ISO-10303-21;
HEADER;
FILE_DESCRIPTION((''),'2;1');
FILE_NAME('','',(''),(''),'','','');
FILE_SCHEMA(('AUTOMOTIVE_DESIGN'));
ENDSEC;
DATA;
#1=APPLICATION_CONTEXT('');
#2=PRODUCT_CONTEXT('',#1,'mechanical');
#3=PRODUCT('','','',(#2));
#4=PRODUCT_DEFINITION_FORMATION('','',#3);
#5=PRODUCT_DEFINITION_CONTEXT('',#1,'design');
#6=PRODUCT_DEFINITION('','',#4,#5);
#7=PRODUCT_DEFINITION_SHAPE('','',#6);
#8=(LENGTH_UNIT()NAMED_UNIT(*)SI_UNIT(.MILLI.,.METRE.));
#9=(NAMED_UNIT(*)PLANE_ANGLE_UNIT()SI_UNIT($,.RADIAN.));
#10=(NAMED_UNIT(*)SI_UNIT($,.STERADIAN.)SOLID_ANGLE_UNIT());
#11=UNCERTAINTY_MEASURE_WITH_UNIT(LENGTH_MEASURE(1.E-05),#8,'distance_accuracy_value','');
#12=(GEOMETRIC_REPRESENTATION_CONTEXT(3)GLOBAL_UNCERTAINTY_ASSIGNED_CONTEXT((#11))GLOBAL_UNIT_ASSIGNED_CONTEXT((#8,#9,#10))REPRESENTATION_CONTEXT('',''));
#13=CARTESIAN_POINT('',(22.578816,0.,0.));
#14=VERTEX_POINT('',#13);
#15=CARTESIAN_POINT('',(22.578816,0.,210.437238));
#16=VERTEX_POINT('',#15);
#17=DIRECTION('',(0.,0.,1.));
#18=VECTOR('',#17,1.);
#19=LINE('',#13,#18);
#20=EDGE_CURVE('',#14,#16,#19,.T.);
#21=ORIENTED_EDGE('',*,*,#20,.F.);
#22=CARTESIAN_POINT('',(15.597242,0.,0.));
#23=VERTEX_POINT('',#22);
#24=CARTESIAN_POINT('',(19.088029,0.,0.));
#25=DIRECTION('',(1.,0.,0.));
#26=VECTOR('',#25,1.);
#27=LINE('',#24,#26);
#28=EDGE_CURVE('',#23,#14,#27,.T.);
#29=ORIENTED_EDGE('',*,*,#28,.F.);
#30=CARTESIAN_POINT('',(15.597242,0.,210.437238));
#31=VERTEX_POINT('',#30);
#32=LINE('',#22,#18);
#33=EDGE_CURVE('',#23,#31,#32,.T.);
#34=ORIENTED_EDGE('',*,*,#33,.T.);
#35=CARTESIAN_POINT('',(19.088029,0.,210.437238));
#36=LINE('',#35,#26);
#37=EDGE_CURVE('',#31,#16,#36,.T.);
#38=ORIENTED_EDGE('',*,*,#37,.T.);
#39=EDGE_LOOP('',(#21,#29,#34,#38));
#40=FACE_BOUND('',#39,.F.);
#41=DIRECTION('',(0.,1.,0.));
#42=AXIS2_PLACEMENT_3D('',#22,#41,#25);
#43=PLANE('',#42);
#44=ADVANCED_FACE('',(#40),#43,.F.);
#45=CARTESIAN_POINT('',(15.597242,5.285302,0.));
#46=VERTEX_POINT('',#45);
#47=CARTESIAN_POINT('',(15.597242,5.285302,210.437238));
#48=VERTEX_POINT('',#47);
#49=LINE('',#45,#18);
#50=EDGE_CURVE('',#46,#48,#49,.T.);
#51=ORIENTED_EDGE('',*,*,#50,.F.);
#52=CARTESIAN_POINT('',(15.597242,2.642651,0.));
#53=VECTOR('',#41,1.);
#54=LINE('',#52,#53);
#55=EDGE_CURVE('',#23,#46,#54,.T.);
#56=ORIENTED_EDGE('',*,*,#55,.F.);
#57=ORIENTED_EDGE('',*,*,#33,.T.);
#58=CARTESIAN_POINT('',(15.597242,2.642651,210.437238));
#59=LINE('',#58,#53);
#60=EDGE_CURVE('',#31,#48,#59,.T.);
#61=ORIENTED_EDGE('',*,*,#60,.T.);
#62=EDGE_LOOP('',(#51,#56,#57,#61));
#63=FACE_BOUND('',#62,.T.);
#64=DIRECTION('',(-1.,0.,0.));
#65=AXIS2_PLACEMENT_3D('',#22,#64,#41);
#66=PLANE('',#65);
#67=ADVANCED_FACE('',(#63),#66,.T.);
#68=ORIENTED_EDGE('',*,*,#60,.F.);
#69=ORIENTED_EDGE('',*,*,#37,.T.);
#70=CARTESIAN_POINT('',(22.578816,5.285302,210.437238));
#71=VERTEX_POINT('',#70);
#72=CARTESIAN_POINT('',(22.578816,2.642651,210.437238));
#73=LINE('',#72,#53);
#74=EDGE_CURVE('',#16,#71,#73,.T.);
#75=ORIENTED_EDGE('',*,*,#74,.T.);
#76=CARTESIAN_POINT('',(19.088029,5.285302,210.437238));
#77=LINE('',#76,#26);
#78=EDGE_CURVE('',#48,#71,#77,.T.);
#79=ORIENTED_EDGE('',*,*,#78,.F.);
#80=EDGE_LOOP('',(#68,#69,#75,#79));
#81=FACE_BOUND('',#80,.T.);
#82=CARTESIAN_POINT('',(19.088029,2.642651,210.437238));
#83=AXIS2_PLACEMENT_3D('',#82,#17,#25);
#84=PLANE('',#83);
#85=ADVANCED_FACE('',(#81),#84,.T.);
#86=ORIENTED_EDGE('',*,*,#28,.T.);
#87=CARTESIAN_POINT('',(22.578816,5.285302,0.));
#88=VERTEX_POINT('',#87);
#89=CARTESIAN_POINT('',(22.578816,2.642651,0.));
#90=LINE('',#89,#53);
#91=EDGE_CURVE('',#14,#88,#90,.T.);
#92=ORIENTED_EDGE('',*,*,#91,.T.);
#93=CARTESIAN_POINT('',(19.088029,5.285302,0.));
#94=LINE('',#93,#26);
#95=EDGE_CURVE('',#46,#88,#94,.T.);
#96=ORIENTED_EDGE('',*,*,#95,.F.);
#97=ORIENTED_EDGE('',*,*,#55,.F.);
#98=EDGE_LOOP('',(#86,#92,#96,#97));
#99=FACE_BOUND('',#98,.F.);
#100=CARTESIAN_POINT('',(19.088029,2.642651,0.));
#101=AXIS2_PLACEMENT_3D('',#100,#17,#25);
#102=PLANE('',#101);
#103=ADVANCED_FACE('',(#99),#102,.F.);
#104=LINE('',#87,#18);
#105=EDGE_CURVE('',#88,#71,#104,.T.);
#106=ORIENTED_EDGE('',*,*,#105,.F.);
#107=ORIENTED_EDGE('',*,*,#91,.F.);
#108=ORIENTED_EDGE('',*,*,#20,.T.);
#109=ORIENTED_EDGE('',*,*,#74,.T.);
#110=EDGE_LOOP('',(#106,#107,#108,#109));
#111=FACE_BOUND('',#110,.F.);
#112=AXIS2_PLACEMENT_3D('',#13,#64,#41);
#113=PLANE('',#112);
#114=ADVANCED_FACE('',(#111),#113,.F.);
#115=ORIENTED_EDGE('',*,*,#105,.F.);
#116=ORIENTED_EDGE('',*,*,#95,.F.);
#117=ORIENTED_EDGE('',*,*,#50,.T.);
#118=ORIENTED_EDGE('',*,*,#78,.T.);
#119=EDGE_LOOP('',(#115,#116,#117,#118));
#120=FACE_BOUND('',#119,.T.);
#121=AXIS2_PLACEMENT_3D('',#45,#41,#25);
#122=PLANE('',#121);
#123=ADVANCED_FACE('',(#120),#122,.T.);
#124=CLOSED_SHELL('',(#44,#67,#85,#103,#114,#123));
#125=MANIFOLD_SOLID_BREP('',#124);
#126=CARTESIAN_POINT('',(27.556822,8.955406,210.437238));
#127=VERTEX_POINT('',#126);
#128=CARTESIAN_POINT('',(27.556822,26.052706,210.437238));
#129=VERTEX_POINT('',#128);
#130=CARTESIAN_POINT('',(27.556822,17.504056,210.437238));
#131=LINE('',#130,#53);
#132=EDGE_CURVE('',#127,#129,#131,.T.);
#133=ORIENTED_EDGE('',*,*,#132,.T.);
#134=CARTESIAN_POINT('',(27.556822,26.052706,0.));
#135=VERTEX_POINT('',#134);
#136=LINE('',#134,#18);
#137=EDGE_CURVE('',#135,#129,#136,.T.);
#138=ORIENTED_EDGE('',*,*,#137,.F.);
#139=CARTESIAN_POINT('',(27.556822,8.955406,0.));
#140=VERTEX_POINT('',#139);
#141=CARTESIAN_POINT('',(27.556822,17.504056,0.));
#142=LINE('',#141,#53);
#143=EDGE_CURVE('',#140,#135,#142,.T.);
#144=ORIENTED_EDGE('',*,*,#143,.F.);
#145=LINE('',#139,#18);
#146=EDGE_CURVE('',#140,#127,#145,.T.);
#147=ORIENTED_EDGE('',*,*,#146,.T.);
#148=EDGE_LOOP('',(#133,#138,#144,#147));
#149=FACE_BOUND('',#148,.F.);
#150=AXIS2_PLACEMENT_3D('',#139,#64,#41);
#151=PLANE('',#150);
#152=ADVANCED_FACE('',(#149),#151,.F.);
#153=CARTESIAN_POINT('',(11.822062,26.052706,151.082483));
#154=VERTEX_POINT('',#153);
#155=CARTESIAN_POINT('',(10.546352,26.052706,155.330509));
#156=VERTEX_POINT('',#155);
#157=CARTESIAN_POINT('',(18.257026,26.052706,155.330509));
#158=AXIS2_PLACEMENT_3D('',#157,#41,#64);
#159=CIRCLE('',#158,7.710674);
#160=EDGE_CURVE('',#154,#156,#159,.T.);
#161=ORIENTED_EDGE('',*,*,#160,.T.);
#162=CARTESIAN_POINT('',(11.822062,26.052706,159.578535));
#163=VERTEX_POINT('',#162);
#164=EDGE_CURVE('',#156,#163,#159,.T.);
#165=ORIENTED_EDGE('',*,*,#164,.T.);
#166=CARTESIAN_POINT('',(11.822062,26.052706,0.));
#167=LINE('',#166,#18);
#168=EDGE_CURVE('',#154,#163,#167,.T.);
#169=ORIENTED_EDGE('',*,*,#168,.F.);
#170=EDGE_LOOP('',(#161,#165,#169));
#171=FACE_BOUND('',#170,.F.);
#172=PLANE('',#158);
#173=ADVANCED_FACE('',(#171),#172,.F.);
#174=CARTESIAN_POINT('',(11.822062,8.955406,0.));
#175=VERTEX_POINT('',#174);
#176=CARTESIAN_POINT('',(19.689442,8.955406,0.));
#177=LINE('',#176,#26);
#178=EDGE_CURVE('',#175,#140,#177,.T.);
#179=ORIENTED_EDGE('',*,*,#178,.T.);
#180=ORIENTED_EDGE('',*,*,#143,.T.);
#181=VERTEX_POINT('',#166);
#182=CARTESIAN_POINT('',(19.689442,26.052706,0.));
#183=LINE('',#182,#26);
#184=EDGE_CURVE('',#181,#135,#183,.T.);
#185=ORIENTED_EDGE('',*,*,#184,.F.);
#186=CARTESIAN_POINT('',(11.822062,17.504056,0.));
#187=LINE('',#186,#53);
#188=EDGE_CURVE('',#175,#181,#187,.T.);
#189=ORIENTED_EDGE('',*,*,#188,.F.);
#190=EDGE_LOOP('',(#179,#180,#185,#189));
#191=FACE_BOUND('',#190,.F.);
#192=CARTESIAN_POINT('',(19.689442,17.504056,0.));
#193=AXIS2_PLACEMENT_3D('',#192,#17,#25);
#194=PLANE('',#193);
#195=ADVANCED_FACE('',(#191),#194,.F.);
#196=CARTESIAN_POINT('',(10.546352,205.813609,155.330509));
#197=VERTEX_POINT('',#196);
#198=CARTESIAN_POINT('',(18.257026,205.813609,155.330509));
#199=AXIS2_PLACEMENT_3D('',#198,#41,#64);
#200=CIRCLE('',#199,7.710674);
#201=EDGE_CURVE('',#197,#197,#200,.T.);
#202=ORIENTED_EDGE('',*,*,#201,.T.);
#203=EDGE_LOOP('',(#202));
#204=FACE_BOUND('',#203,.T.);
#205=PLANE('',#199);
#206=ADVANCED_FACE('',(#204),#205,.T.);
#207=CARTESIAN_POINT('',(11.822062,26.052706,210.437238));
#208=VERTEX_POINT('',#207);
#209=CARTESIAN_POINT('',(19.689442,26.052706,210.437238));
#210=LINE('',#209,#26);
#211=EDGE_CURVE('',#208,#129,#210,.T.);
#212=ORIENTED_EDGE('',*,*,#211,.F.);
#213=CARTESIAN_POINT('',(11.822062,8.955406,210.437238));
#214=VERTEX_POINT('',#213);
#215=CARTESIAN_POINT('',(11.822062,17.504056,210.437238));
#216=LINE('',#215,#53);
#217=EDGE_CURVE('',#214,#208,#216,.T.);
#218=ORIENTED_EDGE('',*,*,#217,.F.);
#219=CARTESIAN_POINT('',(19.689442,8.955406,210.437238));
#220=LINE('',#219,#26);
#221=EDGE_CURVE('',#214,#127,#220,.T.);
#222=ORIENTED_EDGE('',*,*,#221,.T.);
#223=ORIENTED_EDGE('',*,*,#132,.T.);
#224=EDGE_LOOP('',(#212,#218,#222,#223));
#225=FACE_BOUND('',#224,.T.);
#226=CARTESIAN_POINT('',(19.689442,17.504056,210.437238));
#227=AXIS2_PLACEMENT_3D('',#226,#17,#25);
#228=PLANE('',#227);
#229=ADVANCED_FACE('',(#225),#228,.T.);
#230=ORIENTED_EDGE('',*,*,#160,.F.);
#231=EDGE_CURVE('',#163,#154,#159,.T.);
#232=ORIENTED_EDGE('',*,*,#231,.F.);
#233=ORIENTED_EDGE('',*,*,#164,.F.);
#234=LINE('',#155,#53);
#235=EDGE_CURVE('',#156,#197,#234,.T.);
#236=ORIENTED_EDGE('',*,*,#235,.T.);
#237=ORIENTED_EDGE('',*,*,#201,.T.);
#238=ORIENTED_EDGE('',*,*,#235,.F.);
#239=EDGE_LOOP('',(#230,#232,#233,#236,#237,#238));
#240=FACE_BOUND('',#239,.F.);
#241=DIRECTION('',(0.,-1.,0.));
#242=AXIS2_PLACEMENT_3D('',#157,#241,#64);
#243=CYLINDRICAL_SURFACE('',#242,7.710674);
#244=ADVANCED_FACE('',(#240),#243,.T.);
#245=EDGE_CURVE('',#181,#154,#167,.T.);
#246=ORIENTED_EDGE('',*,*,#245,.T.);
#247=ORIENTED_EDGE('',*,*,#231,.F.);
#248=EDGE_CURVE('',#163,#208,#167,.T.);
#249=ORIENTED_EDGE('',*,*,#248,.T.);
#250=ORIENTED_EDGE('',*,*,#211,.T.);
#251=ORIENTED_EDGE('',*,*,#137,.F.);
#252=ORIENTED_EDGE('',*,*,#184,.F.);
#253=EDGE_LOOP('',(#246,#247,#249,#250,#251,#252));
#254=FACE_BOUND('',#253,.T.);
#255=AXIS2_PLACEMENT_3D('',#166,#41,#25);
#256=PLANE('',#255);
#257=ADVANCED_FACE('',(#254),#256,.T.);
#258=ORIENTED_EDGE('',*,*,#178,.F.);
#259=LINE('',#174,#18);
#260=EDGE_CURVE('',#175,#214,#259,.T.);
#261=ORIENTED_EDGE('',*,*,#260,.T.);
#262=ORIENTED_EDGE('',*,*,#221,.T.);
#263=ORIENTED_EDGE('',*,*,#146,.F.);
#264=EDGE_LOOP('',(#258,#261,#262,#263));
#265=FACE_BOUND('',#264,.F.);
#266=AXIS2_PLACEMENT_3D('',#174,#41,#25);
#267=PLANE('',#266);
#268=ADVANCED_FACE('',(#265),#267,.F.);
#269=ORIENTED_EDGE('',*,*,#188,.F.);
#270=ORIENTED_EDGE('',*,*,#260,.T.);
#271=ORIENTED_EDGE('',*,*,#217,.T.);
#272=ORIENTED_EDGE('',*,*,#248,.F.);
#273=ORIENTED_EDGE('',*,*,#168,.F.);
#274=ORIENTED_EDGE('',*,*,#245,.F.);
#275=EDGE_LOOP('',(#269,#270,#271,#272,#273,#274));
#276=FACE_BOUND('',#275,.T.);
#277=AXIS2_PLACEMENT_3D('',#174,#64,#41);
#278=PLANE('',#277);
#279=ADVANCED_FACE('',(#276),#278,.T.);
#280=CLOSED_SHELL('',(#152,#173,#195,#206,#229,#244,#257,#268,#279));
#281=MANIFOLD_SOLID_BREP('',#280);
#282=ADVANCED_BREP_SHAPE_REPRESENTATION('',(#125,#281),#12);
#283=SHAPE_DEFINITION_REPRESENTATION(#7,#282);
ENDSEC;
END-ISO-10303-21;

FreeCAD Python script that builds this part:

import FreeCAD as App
import Part
import Sketcher
from FreeCAD import Vector
Q = App.Units.Quantity


def add_polygon(sketch, points):
    """Adds a closed chain of lines whose ends are joined by coincident constraints."""
    first, n = sketch.GeometryCount, len(points)
    for a, b in zip(points, points[1:] + points[:1]):
        sketch.addGeometry(Part.LineSegment(App.Vector(*a, 0), App.Vector(*b, 0)), False)
    for i in range(n):
        sketch.addConstraint(Sketcher.Constraint("Coincident", first + i, 2, first + (i + 1) % n, 1))

doc = App.newDocument("Part")
params = doc.addObject("Spreadsheet::Sheet", "Params")
for row, (alias, value) in enumerate([
    ("pad1_length", "210.437238 mm"),
    ("pad2_length", "179.760903 mm"),
], start=1):
    params.set(f"A{row}", alias)
    params.set(f"B{row}", "=" + value)
    params.setAlias(f"B{row}", alias)

body = doc.addObject("PartDesign::Body", "Body")
body.AllowCompound = True

# Sketch on XY plane
sketch1 = doc.addObject("Sketcher::SketchObject", "Sketch")
body.addObject(sketch1)
sketch1.AttachmentSupport = (doc.XY_Plane, [""])
sketch1.MapMode = "FlatFace"
add_polygon(sketch1, [(12, 26), (12, 9), (28, 9), (28, 26)])  # lines 0-3
add_polygon(sketch1, [(16, 5), (16, 0), (23, 0), (23, 5)])  # lines 4-7
sketch1.addConstraint([
    Sketcher.Constraint("Vertical", 0),
    Sketcher.Constraint("Horizontal", 1),
    Sketcher.Constraint("Vertical", 2),
    Sketcher.Constraint("Horizontal", 3),
    Sketcher.Constraint("Vertical", 4),
    Sketcher.Constraint("Horizontal", 5),
    Sketcher.Constraint("Vertical", 6),
    Sketcher.Constraint("Horizontal", 7),
    Sketcher.Constraint("PointOnObject", 4, 2, -1),
    Sketcher.Constraint("DistanceY", 0, 2, 0, 1, Q("17.0973 mm")),
    Sketcher.Constraint("DistanceY", 4, 2, 4, 1, Q("5.285302 mm")),
    Sketcher.Constraint("DistanceX", 1, 1, 1, 2, Q("15.734761 mm")),
    Sketcher.Constraint("DistanceX", 5, 1, 5, 2, Q("6.981575 mm")),
    Sketcher.Constraint("DistanceX", -1, 1, 0, 2, Q("11.822062 mm")),
    Sketcher.Constraint("DistanceX", -1, 1, 4, 2, Q("15.597242 mm")),
    Sketcher.Constraint("DistanceY", -1, 1, 0, 2, Q("8.955406 mm")),
])
pad1 = doc.addObject("PartDesign::Pad", "Pad")
body.addObject(pad1)
pad1.Profile = sketch1
pad1.setExpression("Length", "Params.pad1_length")

# Sketch on XZ plane
sketch2 = doc.addObject("Sketcher::SketchObject", "Sketch001")
body.addObject(sketch2)
sketch2.AttachmentSupport = (doc.XZ_Plane, [""])
sketch2.MapMode = "FlatFace"
sketch2.AttachmentOffset = App.Placement(Vector(0, 0, -26.052706), App.Rotation())
sketch2.addGeometry(Part.Circle(Vector(18, 155, 0), Vector(0, 0, 1), 8), False)
sketch2.addConstraint([
    Sketcher.Constraint("Diameter", 0, Q("15.421348 mm")),
    Sketcher.Constraint("DistanceY", -1, 1, 0, 3, Q("155.330509 mm")),
    Sketcher.Constraint("DistanceX", -1, 1, 0, 3, Q("18.257026 mm")),
])
pad2 = doc.addObject("PartDesign::Pad", "Pad001")
body.addObject(pad2)
pad2.Profile = sketch2
pad2.setExpression("Length", "Params.pad2_length")
pad2.Reversed = True

doc.recompute()
